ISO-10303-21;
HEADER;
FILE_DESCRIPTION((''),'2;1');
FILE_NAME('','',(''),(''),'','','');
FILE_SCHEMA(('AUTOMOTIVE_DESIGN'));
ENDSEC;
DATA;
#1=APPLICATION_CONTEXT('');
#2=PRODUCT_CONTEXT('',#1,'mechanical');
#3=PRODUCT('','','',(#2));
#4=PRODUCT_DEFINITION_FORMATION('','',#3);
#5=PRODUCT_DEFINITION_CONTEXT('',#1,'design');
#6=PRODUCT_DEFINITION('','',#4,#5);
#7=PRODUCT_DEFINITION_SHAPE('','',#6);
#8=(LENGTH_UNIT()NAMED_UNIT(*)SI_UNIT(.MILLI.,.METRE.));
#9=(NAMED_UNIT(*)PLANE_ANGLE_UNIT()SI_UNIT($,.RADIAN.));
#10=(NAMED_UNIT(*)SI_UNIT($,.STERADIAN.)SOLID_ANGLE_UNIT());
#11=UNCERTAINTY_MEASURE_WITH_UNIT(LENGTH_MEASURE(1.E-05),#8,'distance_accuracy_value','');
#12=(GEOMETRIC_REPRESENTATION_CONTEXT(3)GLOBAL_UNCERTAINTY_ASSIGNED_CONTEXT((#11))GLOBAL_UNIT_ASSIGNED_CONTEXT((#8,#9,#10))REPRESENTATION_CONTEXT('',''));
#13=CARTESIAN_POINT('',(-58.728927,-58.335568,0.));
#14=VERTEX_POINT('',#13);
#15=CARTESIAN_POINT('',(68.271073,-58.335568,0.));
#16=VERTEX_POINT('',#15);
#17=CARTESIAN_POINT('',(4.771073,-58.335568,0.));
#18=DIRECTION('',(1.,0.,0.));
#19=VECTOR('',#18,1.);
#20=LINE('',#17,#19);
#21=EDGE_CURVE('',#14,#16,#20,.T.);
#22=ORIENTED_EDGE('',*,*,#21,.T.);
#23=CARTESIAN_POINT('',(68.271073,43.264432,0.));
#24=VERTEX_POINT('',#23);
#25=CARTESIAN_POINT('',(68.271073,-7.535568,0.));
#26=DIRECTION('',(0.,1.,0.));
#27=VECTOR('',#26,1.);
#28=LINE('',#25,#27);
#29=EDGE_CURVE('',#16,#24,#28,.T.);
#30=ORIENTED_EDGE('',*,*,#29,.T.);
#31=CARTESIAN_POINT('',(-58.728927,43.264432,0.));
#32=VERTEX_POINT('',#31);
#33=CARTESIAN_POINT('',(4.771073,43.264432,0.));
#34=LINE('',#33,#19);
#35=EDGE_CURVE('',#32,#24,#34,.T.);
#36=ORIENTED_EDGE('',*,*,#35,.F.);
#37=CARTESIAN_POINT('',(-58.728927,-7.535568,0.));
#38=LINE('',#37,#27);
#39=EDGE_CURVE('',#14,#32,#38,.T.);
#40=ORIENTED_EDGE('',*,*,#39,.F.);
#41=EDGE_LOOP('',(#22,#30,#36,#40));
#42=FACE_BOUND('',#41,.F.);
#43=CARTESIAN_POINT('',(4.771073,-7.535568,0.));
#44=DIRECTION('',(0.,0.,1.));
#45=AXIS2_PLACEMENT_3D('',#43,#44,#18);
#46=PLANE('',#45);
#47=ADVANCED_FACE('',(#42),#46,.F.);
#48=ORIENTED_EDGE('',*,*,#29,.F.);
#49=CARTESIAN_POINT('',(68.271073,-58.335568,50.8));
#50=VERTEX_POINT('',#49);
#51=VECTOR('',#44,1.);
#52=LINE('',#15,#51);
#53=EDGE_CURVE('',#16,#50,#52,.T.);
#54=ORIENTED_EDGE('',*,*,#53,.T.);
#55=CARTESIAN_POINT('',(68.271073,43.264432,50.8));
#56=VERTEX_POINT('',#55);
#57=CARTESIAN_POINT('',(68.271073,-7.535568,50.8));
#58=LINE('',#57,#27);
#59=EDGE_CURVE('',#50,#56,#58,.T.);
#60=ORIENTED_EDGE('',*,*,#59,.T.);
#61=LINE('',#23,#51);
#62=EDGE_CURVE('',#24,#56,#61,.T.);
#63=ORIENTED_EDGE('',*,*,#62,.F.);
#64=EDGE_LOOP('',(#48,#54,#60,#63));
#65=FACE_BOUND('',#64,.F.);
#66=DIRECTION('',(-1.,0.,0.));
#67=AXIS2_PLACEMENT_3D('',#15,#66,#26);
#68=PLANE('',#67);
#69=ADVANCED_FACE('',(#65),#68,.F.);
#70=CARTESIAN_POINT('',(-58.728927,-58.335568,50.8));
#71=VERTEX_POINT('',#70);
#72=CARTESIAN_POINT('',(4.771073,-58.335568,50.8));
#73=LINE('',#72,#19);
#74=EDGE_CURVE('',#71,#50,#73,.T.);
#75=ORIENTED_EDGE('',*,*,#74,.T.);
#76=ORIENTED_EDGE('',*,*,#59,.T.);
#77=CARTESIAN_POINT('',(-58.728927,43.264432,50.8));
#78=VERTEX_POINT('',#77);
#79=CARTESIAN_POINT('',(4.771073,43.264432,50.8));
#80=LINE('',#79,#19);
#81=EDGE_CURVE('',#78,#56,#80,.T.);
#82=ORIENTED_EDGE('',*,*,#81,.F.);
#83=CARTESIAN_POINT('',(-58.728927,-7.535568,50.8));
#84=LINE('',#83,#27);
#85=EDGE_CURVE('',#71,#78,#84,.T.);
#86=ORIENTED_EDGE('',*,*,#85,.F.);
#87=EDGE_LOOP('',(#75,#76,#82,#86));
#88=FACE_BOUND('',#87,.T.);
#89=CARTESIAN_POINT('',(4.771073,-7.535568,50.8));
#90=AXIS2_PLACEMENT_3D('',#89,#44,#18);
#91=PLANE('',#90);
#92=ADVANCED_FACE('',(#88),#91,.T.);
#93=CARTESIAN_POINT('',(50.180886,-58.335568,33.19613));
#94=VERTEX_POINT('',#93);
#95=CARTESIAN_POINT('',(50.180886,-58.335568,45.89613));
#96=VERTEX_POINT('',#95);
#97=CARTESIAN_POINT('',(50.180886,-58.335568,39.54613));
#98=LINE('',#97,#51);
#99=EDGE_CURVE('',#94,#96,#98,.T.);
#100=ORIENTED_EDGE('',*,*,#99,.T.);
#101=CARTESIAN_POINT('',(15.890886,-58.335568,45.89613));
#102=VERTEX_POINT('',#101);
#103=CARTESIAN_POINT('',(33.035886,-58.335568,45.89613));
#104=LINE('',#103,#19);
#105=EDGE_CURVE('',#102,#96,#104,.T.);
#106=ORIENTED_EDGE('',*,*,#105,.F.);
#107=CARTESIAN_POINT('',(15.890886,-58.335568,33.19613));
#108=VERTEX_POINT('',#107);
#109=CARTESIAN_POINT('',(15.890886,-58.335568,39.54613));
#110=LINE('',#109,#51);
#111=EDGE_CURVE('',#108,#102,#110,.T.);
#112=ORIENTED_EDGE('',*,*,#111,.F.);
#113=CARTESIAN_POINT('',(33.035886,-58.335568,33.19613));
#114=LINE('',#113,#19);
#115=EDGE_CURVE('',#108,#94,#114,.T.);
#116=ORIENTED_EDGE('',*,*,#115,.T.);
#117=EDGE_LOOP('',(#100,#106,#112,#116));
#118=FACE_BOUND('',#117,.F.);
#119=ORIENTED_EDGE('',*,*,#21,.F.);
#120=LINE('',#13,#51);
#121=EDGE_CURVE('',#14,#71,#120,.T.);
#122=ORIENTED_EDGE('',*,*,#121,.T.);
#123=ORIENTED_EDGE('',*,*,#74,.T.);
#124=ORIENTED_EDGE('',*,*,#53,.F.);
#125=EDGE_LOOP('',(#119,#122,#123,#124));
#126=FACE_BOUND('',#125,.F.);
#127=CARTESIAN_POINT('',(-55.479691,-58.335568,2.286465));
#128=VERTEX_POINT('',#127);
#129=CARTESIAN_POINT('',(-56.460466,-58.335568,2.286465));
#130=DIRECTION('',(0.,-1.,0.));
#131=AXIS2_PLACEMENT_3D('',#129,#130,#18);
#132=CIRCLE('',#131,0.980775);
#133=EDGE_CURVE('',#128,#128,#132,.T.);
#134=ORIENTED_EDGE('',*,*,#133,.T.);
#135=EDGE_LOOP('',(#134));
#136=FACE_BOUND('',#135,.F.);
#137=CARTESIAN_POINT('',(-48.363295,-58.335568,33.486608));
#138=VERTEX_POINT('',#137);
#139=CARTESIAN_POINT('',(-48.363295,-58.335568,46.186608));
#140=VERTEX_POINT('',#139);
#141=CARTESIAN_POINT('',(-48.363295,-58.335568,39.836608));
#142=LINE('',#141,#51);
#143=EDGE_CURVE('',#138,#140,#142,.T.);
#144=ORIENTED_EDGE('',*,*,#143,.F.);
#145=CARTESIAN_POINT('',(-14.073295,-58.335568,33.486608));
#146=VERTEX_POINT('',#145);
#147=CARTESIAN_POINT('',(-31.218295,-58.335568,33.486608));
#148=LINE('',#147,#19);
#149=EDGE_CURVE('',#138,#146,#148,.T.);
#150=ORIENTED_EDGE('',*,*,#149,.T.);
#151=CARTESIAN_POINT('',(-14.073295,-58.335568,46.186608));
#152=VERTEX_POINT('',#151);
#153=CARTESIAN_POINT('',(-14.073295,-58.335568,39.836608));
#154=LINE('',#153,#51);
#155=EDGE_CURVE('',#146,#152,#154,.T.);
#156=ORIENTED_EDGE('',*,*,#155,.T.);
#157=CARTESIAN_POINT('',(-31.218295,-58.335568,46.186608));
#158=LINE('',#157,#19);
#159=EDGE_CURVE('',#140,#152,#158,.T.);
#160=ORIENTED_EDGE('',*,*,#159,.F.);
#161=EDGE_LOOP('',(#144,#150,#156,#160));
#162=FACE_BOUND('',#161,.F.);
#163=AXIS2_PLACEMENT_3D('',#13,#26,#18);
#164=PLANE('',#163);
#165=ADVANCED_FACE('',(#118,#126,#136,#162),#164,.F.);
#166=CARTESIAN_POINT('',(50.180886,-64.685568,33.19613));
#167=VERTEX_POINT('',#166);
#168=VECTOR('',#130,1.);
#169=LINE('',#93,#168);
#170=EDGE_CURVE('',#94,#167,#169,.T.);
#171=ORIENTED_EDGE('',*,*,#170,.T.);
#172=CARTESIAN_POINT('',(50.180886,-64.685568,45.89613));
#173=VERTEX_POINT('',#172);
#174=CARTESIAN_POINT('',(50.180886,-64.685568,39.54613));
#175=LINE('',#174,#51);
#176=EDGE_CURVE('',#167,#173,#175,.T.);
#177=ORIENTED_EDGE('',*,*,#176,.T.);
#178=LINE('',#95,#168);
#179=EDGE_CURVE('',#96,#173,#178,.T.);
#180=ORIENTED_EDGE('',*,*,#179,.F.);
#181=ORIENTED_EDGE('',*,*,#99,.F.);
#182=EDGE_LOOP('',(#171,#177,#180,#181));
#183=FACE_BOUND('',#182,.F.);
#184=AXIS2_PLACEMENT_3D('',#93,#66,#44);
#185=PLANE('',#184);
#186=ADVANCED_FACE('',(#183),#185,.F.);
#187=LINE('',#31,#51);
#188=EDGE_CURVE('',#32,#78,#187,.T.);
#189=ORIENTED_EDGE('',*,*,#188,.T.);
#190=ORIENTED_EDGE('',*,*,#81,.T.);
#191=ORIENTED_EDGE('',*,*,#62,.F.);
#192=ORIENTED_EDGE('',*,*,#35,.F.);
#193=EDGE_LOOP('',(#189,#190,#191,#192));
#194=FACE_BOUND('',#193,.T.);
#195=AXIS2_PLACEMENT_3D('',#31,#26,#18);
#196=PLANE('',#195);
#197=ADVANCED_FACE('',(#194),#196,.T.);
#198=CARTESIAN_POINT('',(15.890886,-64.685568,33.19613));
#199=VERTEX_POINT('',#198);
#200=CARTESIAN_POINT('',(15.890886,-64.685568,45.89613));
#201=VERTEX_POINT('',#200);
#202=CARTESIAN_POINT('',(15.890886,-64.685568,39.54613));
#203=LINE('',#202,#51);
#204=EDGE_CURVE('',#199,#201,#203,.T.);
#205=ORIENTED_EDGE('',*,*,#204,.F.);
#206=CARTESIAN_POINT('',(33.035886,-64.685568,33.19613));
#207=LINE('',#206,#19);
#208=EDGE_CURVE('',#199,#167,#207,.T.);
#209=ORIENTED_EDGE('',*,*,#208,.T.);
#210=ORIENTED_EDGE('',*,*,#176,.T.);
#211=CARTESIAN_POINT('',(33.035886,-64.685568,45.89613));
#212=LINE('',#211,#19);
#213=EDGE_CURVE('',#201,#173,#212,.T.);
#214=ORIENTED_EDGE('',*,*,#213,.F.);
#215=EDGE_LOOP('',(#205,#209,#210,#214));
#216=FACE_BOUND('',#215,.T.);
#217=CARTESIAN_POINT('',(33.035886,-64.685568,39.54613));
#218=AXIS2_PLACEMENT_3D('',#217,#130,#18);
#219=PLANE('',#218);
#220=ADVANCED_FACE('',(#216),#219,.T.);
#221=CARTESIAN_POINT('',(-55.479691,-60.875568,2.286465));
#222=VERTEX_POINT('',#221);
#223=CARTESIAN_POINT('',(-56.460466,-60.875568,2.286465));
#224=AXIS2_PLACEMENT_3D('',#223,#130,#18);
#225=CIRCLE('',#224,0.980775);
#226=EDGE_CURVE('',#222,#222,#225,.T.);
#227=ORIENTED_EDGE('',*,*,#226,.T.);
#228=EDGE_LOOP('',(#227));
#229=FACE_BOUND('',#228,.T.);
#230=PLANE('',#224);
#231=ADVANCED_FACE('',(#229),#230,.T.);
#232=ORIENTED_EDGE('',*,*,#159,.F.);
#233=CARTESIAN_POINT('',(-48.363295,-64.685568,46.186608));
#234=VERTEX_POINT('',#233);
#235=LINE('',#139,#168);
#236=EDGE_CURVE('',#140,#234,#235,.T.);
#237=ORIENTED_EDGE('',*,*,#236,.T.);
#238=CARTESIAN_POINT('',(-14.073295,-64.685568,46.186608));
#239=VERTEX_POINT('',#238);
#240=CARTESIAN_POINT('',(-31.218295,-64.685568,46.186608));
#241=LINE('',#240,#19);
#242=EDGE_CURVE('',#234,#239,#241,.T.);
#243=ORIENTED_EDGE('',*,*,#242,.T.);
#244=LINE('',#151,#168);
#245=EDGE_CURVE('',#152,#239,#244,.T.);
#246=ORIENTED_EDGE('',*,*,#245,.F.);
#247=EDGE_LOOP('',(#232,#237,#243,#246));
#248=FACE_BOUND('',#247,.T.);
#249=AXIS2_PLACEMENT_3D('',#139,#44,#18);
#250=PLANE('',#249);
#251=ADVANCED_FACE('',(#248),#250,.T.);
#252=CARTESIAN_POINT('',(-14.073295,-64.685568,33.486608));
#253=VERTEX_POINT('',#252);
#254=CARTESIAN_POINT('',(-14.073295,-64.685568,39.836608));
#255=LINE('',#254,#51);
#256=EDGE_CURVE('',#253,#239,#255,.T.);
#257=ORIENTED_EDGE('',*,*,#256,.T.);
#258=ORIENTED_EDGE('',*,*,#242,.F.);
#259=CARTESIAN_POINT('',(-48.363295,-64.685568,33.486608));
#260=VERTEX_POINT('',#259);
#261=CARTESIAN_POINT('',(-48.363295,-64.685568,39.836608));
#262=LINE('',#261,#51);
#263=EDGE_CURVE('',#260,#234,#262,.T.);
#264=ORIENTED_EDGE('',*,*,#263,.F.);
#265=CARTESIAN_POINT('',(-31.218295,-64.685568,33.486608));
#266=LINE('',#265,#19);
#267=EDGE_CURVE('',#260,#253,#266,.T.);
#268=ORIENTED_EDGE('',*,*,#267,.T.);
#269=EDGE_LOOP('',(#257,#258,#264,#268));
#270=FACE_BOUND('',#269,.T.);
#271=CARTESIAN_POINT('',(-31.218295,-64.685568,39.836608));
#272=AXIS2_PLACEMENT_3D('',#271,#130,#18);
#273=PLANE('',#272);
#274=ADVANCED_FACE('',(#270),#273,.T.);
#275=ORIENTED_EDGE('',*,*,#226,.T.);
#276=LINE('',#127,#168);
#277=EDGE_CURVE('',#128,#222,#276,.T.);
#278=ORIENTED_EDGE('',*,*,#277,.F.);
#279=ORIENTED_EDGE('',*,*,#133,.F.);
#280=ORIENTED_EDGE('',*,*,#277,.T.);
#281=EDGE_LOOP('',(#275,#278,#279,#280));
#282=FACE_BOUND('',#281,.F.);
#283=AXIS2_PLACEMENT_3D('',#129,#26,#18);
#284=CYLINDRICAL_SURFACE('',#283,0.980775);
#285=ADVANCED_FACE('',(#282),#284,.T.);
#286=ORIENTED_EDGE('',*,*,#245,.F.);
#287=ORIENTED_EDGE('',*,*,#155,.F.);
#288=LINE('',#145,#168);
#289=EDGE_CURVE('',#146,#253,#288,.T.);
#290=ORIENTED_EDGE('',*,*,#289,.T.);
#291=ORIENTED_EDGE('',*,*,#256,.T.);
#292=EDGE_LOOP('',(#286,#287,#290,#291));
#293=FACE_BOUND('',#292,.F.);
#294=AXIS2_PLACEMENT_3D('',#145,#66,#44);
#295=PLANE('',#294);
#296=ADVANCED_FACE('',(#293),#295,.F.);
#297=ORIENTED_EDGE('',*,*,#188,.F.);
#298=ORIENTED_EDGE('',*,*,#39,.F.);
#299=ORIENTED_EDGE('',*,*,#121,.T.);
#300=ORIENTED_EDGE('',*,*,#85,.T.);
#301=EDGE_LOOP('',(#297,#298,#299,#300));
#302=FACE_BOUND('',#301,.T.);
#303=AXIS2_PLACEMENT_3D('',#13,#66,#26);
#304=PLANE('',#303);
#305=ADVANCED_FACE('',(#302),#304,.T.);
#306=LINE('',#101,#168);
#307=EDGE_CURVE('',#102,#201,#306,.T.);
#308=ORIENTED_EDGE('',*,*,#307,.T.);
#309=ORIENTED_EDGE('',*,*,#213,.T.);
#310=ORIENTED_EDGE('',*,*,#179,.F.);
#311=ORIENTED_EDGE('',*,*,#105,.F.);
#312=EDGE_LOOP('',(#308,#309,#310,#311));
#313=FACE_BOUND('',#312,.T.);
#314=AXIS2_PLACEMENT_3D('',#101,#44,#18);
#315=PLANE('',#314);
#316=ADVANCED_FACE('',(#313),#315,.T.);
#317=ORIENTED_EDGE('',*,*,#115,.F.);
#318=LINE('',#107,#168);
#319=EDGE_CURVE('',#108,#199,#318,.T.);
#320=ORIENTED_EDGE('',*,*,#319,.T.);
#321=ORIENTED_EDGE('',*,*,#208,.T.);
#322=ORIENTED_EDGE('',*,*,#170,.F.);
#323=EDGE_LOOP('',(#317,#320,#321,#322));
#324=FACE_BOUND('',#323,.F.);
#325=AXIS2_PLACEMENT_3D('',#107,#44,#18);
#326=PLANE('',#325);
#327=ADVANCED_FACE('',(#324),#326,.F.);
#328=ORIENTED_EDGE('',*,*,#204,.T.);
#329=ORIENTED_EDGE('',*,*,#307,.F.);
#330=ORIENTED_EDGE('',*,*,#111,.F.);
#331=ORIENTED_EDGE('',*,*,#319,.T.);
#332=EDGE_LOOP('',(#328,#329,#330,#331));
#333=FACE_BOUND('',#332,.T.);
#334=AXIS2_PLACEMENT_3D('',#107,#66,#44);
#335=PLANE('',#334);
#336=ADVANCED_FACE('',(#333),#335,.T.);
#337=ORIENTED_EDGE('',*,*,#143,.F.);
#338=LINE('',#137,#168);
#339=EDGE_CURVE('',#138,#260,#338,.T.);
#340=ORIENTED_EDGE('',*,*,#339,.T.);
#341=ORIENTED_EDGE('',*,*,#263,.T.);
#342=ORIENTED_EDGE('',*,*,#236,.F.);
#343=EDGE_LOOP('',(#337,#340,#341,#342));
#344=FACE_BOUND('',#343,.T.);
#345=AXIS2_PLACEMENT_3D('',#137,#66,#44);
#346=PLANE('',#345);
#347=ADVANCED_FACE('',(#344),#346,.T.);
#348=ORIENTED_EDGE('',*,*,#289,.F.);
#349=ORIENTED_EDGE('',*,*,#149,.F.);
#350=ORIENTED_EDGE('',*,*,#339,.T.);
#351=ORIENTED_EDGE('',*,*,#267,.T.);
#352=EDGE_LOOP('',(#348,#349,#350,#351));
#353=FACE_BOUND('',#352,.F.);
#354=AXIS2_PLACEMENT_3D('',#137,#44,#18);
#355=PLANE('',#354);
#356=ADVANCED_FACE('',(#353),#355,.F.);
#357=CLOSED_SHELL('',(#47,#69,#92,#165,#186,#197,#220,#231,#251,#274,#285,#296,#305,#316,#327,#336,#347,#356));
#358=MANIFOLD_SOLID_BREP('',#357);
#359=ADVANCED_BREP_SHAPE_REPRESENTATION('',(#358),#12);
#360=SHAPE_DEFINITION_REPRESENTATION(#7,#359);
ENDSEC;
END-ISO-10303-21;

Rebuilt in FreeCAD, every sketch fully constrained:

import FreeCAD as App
import Part
import Sketcher

V = App.Vector
Q = App.Units.Quantity

doc = App.newDocument("Part")
body = doc.addObject("PartDesign::Body", "Body")

# Sketch on XY plane
sketch1 = doc.addObject("Sketcher::SketchObject", "Sketch")
body.addObject(sketch1)
sketch1.AttachmentSupport = (doc.XY_Plane, [""])
sketch1.MapMode = "FlatFace"
sketch1.addGeometry([
    Part.LineSegment(V(-59, 43, 0), V(-59, -58, 0)),
    Part.LineSegment(V(-59, -58, 0), V(68, -58, 0)),
    Part.LineSegment(V(68, -58, 0), V(68, 43, 0)),
    Part.LineSegment(V(68, 43, 0), V(-59, 43, 0)),
], False)
sketch1.addConstraint([
    Sketcher.Constraint("Coincident", 0, 2, 1, 1),
    Sketcher.Constraint("Coincident", 1, 2, 2, 1),
    Sketcher.Constraint("Coincident", 2, 2, 3, 1),
    Sketcher.Constraint("Coincident", 3, 2, 0, 1),
    Sketcher.Constraint("Vertical", 0),
    Sketcher.Constraint("Horizontal", 1),
    Sketcher.Constraint("Vertical", 2),
    Sketcher.Constraint("Horizontal", 3),
    Sketcher.Constraint("DistanceX", 1, 1, 1, 2, Q("5 in")),
    Sketcher.Constraint("DistanceY", 0, 2, 0, 1, Q("4 in")),
    Sketcher.Constraint("DistanceY", 0, 2, -1, 1, 58.335568),
    Sketcher.Constraint("DistanceX", 0, 2, -1, 1, 58.728927),
])
pad1 = doc.addObject("PartDesign::Pad", "Pad")
body.addObject(pad1)
pad1.Profile = sketch1
pad1.Length = Q("2 in")

# Sketch on XZ plane
sketch2 = doc.addObject("Sketcher::SketchObject", "Sketch001")
body.addObject(sketch2)
sketch2.AttachmentSupport = (doc.XZ_Plane, [""])
sketch2.MapMode = "FlatFace"
sketch2.AttachmentOffset = App.Placement(V(0, 0, 58.335568), App.Rotation())
sketch2.addGeometry(Part.Circle(V(-56.5, 2.3, 0), V(0, 0, 1), 1), False)
sketch2.addConstraint([
    Sketcher.Constraint("Diameter", 0, 1.96155),
    Sketcher.Constraint("DistanceX", 0, 3, -1, 1, 56.460466),
    Sketcher.Constraint("DistanceY", -1, 1, 0, 3, 2.286465),
])
pad2 = doc.addObject("PartDesign::Pad", "Pad001")
body.addObject(pad2)
pad2.Profile = sketch2
pad2.Length = Q("0.1 in")

# Sketch on XZ plane
sketch3 = doc.addObject("Sketcher::SketchObject", "Sketch002")
body.addObject(sketch3)
sketch3.AttachmentSupport = (doc.XZ_Plane, [""])
sketch3.MapMode = "FlatFace"
sketch3.AttachmentOffset = App.Placement(V(0, 0, 58.335568), App.Rotation())
sketch3.addGeometry([
    Part.LineSegment(V(-48, 46, 0), V(-48, 33, 0)),
    Part.LineSegment(V(-48, 33, 0), V(-14, 33, 0)),
    Part.LineSegment(V(-14, 33, 0), V(-14, 46, 0)),
    Part.LineSegment(V(-14, 46, 0), V(-48, 46, 0)),
], False)
sketch3.addConstraint([
    Sketcher.Constraint("Coincident", 0, 2, 1, 1),
    Sketcher.Constraint("Coincident", 1, 2, 2, 1),
    Sketcher.Constraint("Coincident", 2, 2, 3, 1),
    Sketcher.Constraint("Coincident", 3, 2, 0, 1),
    Sketcher.Constraint("Vertical", 0),
    Sketcher.Constraint("Horizontal", 1),
    Sketcher.Constraint("Vertical", 2),
    Sketcher.Constraint("Horizontal", 3),
    Sketcher.Constraint("DistanceY", 0, 2, 0, 1, Q("0.5 in")),
    Sketcher.Constraint("DistanceX", 1, 1, 1, 2, Q("1.35 in")),
    Sketcher.Constraint("DistanceX", 0, 2, -1, 1, 48.363295),
    Sketcher.Constraint("DistanceY", -1, 1, 0, 2, 33.486608),
])
pad3 = doc.addObject("PartDesign::Pad", "Pad002")
body.addObject(pad3)
pad3.Profile = sketch3
pad3.Length = Q("0.25 in")

# Sketch on XZ plane
sketch4 = doc.addObject("Sketcher::SketchObject", "Sketch003")
body.addObject(sketch4)
sketch4.AttachmentSupport = (doc.XZ_Plane, [""])
sketch4.MapMode = "FlatFace"
sketch4.AttachmentOffset = App.Placement(V(0, 0, 58.335568), App.Rotation())
sketch4.addGeometry([
    Part.LineSegment(V(16, 46, 0), V(16, 33, 0)),
    Part.LineSegment(V(16, 33, 0), V(50, 33, 0)),
    Part.LineSegment(V(50, 33, 0), V(50, 46, 0)),
    Part.LineSegment(V(50, 46, 0), V(16, 46, 0)),
], False)
sketch4.addConstraint([
    Sketcher.Constraint("Coincident", 0, 2, 1, 1),
    Sketcher.Constraint("Coincident", 1, 2, 2, 1),
    Sketcher.Constraint("Coincident", 2, 2, 3, 1),
    Sketcher.Constraint("Coincident", 3, 2, 0, 1),
    Sketcher.Constraint("Vertical", 0),
    Sketcher.Constraint("Horizontal", 1),
    Sketcher.Constraint("Vertical", 2),
    Sketcher.Constraint("Horizontal", 3),
    Sketcher.Constraint("DistanceY", 0, 2, 0, 1, Q("0.5 in")),
    Sketcher.Constraint("DistanceX", 1, 1, 1, 2, Q("1.35 in")),
    Sketcher.Constraint("DistanceY", -1, 1, 0, 2, 33.19613),
    Sketcher.Constraint("DistanceX", -1, 1, 0, 2, 15.890886),
])
pad4 = doc.addObject("PartDesign::Pad", "Pad003")
body.addObject(pad4)
pad4.Profile = sketch4
pad4.Length = Q("0.25 in")

doc.recompute()
